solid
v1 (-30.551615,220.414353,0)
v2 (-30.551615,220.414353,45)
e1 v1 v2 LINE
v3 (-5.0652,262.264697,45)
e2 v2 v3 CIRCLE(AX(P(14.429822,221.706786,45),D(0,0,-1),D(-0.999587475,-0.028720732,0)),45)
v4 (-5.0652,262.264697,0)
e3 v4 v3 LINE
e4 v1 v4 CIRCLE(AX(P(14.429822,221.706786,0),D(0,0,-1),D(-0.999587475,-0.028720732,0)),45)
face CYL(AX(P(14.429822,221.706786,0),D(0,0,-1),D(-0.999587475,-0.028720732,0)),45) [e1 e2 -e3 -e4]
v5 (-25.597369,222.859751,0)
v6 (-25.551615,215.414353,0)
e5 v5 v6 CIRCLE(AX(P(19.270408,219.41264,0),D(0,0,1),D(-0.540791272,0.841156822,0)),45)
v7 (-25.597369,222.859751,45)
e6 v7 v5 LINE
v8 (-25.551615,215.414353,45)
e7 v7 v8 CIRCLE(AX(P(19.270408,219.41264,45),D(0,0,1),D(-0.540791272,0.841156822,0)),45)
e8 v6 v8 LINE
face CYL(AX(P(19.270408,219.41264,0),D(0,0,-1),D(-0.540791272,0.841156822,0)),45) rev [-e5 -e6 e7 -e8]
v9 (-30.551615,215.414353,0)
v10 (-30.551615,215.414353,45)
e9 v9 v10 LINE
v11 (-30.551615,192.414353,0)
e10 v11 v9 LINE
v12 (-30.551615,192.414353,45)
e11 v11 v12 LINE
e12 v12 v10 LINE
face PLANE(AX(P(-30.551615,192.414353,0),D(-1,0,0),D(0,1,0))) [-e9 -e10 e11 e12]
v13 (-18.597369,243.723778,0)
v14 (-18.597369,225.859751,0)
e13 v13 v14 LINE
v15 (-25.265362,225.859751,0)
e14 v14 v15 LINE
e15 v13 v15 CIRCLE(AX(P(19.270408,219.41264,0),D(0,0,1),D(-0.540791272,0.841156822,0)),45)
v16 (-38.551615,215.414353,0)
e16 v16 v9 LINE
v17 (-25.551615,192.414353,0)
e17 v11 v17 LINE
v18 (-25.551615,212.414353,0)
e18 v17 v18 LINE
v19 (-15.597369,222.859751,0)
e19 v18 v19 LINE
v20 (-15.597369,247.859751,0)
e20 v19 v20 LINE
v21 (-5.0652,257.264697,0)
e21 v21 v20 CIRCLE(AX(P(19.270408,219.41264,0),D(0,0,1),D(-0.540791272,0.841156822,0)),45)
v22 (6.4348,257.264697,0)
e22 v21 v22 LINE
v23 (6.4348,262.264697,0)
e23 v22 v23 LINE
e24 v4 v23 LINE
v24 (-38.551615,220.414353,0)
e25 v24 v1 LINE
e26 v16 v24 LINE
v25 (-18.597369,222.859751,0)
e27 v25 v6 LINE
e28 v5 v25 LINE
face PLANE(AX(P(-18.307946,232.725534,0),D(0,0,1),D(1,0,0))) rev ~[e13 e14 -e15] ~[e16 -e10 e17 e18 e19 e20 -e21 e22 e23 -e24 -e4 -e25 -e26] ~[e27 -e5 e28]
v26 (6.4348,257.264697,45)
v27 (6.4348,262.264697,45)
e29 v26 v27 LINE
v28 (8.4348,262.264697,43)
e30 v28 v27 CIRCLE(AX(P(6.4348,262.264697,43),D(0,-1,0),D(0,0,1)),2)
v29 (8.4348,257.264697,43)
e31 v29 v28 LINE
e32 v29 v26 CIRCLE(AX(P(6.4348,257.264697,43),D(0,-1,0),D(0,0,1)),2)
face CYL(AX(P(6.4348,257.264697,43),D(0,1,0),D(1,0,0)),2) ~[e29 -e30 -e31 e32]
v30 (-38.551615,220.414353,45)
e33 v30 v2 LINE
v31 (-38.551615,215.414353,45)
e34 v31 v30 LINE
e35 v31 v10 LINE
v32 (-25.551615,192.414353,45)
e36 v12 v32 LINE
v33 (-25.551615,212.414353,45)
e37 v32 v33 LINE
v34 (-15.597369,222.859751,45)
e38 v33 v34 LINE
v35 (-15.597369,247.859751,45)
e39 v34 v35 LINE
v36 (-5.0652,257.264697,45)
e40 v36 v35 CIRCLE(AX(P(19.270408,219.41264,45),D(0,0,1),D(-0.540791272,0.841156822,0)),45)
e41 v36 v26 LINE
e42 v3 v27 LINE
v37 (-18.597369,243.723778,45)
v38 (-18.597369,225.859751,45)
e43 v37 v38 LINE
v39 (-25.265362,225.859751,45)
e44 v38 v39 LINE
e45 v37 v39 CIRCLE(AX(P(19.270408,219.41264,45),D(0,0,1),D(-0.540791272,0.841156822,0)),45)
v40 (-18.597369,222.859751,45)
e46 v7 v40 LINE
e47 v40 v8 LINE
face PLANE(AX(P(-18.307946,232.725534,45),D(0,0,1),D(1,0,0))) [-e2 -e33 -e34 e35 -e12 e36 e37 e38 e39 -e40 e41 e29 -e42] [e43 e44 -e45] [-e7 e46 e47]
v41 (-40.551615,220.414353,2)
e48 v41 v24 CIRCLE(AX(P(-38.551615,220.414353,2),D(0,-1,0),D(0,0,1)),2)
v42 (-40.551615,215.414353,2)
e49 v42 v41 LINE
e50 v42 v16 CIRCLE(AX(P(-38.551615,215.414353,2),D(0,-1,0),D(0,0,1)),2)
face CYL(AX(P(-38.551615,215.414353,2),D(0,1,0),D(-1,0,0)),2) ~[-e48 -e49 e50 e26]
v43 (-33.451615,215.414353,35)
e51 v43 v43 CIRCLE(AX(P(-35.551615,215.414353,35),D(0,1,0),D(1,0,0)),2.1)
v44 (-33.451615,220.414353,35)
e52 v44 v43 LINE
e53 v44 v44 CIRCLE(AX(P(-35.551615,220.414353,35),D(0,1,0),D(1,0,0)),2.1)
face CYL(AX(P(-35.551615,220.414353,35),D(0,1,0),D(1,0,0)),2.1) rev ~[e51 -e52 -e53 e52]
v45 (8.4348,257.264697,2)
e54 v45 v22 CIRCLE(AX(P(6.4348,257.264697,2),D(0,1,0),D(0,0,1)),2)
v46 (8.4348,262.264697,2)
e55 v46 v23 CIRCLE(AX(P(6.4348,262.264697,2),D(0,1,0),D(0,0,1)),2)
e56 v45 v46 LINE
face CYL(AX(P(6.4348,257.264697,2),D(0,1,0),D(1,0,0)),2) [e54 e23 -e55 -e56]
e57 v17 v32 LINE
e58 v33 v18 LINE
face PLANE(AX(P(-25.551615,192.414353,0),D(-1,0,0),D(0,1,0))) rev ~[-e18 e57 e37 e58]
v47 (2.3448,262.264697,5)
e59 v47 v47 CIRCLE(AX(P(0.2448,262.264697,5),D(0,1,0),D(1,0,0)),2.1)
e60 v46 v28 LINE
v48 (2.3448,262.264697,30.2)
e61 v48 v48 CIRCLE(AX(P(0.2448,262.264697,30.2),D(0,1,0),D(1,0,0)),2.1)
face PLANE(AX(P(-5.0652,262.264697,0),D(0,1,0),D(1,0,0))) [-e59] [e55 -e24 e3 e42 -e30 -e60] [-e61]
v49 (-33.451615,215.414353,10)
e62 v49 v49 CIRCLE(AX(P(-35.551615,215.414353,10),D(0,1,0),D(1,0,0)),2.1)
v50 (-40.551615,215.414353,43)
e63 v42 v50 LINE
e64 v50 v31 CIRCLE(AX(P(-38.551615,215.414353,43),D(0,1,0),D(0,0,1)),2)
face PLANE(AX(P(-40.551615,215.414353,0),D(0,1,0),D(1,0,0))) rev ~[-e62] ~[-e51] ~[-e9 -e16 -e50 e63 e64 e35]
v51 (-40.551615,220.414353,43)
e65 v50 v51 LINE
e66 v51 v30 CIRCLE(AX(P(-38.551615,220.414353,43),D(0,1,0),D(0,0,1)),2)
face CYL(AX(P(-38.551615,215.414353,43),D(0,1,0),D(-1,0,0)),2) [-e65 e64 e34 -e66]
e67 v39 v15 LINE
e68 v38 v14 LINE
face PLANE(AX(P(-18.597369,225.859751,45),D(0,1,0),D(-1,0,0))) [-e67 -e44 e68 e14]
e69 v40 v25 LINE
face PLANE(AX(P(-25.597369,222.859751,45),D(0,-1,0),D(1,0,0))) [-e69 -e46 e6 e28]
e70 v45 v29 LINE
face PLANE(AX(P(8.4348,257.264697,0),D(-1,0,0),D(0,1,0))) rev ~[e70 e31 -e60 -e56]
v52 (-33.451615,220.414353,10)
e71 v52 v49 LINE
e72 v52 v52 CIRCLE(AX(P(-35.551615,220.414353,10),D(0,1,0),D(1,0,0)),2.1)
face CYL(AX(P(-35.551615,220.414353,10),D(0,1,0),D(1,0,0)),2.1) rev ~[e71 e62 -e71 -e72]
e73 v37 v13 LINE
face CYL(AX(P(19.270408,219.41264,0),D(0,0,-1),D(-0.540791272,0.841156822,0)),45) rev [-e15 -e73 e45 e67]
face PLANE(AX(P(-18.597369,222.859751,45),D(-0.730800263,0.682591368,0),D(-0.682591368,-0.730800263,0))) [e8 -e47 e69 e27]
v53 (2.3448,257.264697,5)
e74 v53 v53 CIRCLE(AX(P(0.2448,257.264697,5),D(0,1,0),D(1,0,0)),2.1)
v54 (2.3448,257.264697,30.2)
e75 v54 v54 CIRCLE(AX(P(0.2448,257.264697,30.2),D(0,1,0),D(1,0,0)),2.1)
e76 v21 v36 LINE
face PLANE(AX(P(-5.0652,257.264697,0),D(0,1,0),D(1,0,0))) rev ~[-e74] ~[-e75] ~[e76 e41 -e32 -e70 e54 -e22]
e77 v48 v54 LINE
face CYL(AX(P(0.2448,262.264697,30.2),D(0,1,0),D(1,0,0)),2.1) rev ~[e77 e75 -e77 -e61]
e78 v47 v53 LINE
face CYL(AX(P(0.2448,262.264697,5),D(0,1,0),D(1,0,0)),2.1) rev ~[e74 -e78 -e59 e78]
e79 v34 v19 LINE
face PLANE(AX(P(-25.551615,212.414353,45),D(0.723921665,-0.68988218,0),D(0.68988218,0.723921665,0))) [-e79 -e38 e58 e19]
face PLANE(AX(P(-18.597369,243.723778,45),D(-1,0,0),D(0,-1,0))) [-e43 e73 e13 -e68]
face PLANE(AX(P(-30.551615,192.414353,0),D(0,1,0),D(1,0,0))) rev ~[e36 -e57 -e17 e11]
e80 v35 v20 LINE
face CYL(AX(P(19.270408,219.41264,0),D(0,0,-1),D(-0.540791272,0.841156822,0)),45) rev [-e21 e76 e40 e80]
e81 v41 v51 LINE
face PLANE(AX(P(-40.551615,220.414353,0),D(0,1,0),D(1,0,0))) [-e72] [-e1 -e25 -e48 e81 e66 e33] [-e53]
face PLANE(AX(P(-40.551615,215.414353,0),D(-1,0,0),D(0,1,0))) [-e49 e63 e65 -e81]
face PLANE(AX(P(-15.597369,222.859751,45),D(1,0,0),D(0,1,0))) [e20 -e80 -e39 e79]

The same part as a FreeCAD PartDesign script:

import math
import FreeCAD as App
import Part
import Sketcher


def edges_at(feature, points):
    """Names of the edges that pass closest to the given points."""
    edges = feature.Shape.Edges
    near = lambda p: min(range(len(edges)), key=lambda i: edges[i].distToShape(Part.Vertex(*p))[0])
    return sorted({f"Edge{near(p) + 1}" for p in points})


def add_polygon(sketch, points):
    """Adds a closed chain of lines whose ends are joined by coincident constraints."""
    first, n = sketch.GeometryCount, len(points)
    for a, b in zip(points, points[1:] + points[:1]):
        sketch.addGeometry(Part.LineSegment(App.Vector(*a, 0), App.Vector(*b, 0)), False)
    for i in range(n):
        sketch.addConstraint(Sketcher.Constraint("Coincident", first + i, 2, first + (i + 1) % n, 1))

doc = App.newDocument("Part")
body = doc.addObject("PartDesign::Body", "Body")

# Sketch on XY plane
sketch1 = body.newObject("Sketcher::SketchObject", "Sketch")
sketch1.AttachmentSupport = (doc.getObject("XY_Plane"), [""])
sketch1.MapMode = "FlatFace"
sketch1.addGeometry(Part.ArcOfCircle(Part.Circle(App.Vector(19.270408, 219.41264, 0), App.Vector(0, 0, 1), 45), math.radians(122.73752), math.radians(185.097499)), False)
sketch1.addGeometry(Part.LineSegment(App.Vector(-5.0652, 257.264697, 0), App.Vector(8.4348, 257.264697, 0)), False)
sketch1.addGeometry(Part.LineSegment(App.Vector(8.4348, 257.264697, 0), App.Vector(8.4348, 262.264697, 0)), False)
sketch1.addGeometry(Part.LineSegment(App.Vector(8.4348, 262.264697, 0), App.Vector(-5.0652, 262.264697, 0)), False)
sketch1.addGeometry(Part.ArcOfCircle(Part.Circle(App.Vector(14.429822, 221.706786, 0), App.Vector(0, 0, 1), 45), math.radians(115.672255), math.radians(181.645803)), False)
sketch1.addGeometry(Part.LineSegment(App.Vector(-30.551615, 220.414353, 0), App.Vector(-40.551615, 220.414353, 0)), False)
sketch1.addGeometry(Part.LineSegment(App.Vector(-40.551615, 220.414353, 0), App.Vector(-40.551615, 215.414353, 0)), False)
sketch1.addGeometry(Part.LineSegment(App.Vector(-40.551615, 215.414353, 0), App.Vector(-30.551615, 215.414353, 0)), False)
sketch1.addGeometry(Part.LineSegment(App.Vector(-30.551615, 215.414353, 0), App.Vector(-30.551615, 192.414353, 0)), False)
sketch1.addGeometry(Part.LineSegment(App.Vector(-30.551615, 192.414353, 0), App.Vector(-25.551615, 192.414353, 0)), False)
sketch1.addGeometry(Part.LineSegment(App.Vector(-25.551615, 192.414353, 0), App.Vector(-25.551615, 215.414353, 0)), False)
sketch1.addConstraint(Sketcher.Constraint("Coincident", 0, 1, 1, 1))
sketch1.addConstraint(Sketcher.Constraint("Coincident", 1, 2, 2, 1))
sketch1.addConstraint(Sketcher.Constraint("Coincident", 2, 2, 3, 1))
sketch1.addConstraint(Sketcher.Constraint("Coincident", 3, 2, 4, 1))
sketch1.addConstraint(Sketcher.Constraint("Coincident", 4, 2, 5, 1))
sketch1.addConstraint(Sketcher.Constraint("Coincident", 5, 2, 6, 1))
sketch1.addConstraint(Sketcher.Constraint("Coincident", 6, 2, 7, 1))
sketch1.addConstraint(Sketcher.Constraint("Coincident", 7, 2, 8, 1))
sketch1.addConstraint(Sketcher.Constraint("Coincident", 8, 2, 9, 1))
sketch1.addConstraint(Sketcher.Constraint("Coincident", 9, 2, 10, 1))
sketch1.addConstraint(Sketcher.Constraint("Coincident", 10, 2, 0, 2))
sketch1.addConstraint(Sketcher.Constraint("Horizontal", 1))
sketch1.addConstraint(Sketcher.Constraint("Vertical", 2))
sketch1.addConstraint(Sketcher.Constraint("Horizontal", 3))
sketch1.addConstraint(Sketcher.Constraint("Horizontal", 5))
sketch1.addConstraint(Sketcher.Constraint("Vertical", 6))
sketch1.addConstraint(Sketcher.Constraint("Horizontal", 7))
sketch1.addConstraint(Sketcher.Constraint("Vertical", 8))
sketch1.addConstraint(Sketcher.Constraint("Horizontal", 9))
sketch1.addConstraint(Sketcher.Constraint("Vertical", 10))
sketch1.addConstraint(Sketcher.Constraint("Equal", 0, 4))
sketch1.addConstraint(Sketcher.Constraint("Horizontal", 7, 2, 10, 2))
sketch1.addConstraint(Sketcher.Constraint("Vertical", 0, 1, 3, 2))
sketch1.addConstraint(Sketcher.Constraint("Vertical", 4, 2, 7, 2))
sketch1.addConstraint(Sketcher.Constraint("Equal", 9, 2))
sketch1.addConstraint(Sketcher.Constraint("Equal", 2, 6))
sketch1.addConstraint(Sketcher.Constraint("Radius", 0, 45.0))
sketch1.addConstraint(Sketcher.Constraint("DistanceX", 5, 2, 5, 1, 10.0))
sketch1.addConstraint(Sketcher.Constraint("DistanceX", 9, 1, 9, 2, 5.0))
sketch1.addConstraint(Sketcher.Constraint("DistanceY", 8, 2, 8, 1, 23.0))
sketch1.addConstraint(Sketcher.Constraint("DistanceX", 1, 1, 1, 2, 13.5))
sketch1.addConstraint(Sketcher.Constraint("DistanceX", 0, 1, -1, 1, 5.0652))
sketch1.addConstraint(Sketcher.Constraint("DistanceY", -1, 1, 0, 3, 219.41264))
sketch1.addConstraint(Sketcher.Constraint("DistanceX", -1, 1, 4, 3, 14.429822))
sketch1.addConstraint(Sketcher.Constraint("DistanceX", -1, 1, 0, 3, 19.270408))
pad1 = body.newObject("PartDesign::Pad", "Pad")
pad1.Profile = sketch1
pad1.Length = 45
doc.recompute()

fillet = body.newObject("PartDesign::Fillet", "Fillet")
fillet.Base = (pad1, edges_at(pad1, [
    (-40.552, 217.914, 0),
    (8.435, 259.765, 45),
    (8.435, 259.765, 0),
    (-40.552, 217.914, 45),
]))
fillet.Radius = 2

# Sketch on XZ plane
sketch2 = body.newObject("Sketcher::SketchObject", "Sketch001")
sketch2.AttachmentSupport = (doc.getObject("XZ_Plane"), [""])
sketch2.MapMode = "FlatFace"
sketch2.AttachmentOffset = App.Placement(App.Vector(0, 0, -262.264697), App.Rotation())
sketch2.addGeometry(Part.Circle(App.Vector(0.2448, 40, 0), App.Vector(0, 0, 1), 2.1), False)
sketch2.addGeometry(Part.Circle(App.Vector(0.2448, 14.8, 0), App.Vector(0, 0, 1), 2.1), False)
sketch2.addConstraint(Sketcher.Constraint("Equal", 0, 1))
sketch2.addConstraint(Sketcher.Constraint("Vertical", 0, 3, 1, 3))
sketch2.addConstraint(Sketcher.Constraint("Diameter", 0, 4.2))
sketch2.addConstraint(Sketcher.Constraint("DistanceY", -1, 1, 0, 3, 40.0))
sketch2.addConstraint(Sketcher.Constraint("DistanceY", -1, 1, 1, 3, 14.8))
sketch2.addConstraint(Sketcher.Constraint("DistanceX", -1, 1, 0, 3, 0.2448))
pocket1 = body.newObject("PartDesign::Pocket", "Pocket")
pocket1.Profile = sketch2
pocket1.Length = 45
pocket1.Reversed = True

# Sketch on XZ plane
sketch3 = body.newObject("Sketcher::SketchObject", "Sketch002")
sketch3.AttachmentSupport = (doc.getObject("XZ_Plane"), [""])
sketch3.MapMode = "FlatFace"
sketch3.AttachmentOffset = App.Placement(App.Vector(0, 0, -220.414353), App.Rotation())
sketch3.addGeometry(Part.Circle(App.Vector(-35.551615, 10, 0), App.Vector(0, 0, 1), 2.1), False)
sketch3.addGeometry(Part.Circle(App.Vector(-35.551615, 35, 0), App.Vector(0, 0, 1), 2.1), False)
sketch3.addConstraint(Sketcher.Constraint("Equal", 0, 1))
sketch3.addConstraint(Sketcher.Constraint("Vertical", 0, 3, 1, 3))
sketch3.addConstraint(Sketcher.Constraint("Diameter", 0, 4.2))
sketch3.addConstraint(Sketcher.Constraint("DistanceY", -1, 1, 0, 3, 10.0))
sketch3.addConstraint(Sketcher.Constraint("DistanceY", -1, 1, 1, 3, 35.0))
sketch3.addConstraint(Sketcher.Constraint("DistanceX", 0, 3, -1, 1, 35.551615))
pocket2 = body.newObject("PartDesign::Pocket", "Pocket001")
pocket2.Profile = sketch3
pocket2.Length = 45
pocket2.Reversed = True

# Sketch on XZ plane
sketch4 = body.newObject("Sketcher::SketchObject", "Sketch003")
sketch4.AttachmentSupport = (doc.getObject("XZ_Plane"), [""])
sketch4.MapMode = "FlatFace"
sketch4.AttachmentOffset = App.Placement(App.Vector(0, 0, -262.264697), App.Rotation())
add_polygon(sketch4, [(-3.010778, 10.62984), (-3.010778, 43.217089), (5.199681, 43.217089), (5.199681, 10.62984)])  # lines 0-3
sketch4.addConstraint(Sketcher.Constraint("Vertical", 0))
sketch4.addConstraint(Sketcher.Constraint("Horizontal", 1))
sketch4.addConstraint(Sketcher.Constraint("Vertical", 2))
sketch4.addConstraint(Sketcher.Constraint("Horizontal", 3))
sketch4.addConstraint(Sketcher.Constraint("DistanceX", 1, 1, 1, 2, 8.210459))
sketch4.addConstraint(Sketcher.Constraint("DistanceY", 0, 1, 0, 2, 32.587249))
sketch4.addConstraint(Sketcher.Constraint("DistanceX", 0, 2, -1, 1, 3.010778))
sketch4.addConstraint(Sketcher.Constraint("DistanceY", -1, 1, 0, 2, 43.217089))
pad2 = body.newObject("PartDesign::Pad", "Pad001")
pad2.Profile = sketch4
pad2.Length = 5

# Sketch on XZ plane
sketch5 = body.newObject("Sketcher::SketchObject", "Sketch004")
sketch5.AttachmentSupport = (doc.getObject("XZ_Plane"), [""])
sketch5.MapMode = "FlatFace"
sketch5.AttachmentOffset = App.Placement(App.Vector(0, 0, -262.264697), App.Rotation())
sketch5.addGeometry(Part.Circle(App.Vector(0.2448, 5, 0), App.Vector(0, 0, 1), 2.1), False)
sketch5.addGeometry(Part.Circle(App.Vector(0.2448, 30.2, 0), App.Vector(0, 0, 1), 2.1), False)
sketch5.addConstraint(Sketcher.Constraint("Equal", 0, 1))
sketch5.addConstraint(Sketcher.Constraint("Vertical", 0, 3, 1, 3))
sketch5.addConstraint(Sketcher.Constraint("Diameter", 0, 4.2))
sketch5.addConstraint(Sketcher.Constraint("DistanceY", -1, 1, 0, 3, 5.0))
sketch5.addConstraint(Sketcher.Constraint("DistanceY", -1, 1, 1, 3, 30.2))
sketch5.addConstraint(Sketcher.Constraint("DistanceX", -1, 1, 0, 3, 0.2448))
pocket3 = body.newObject("PartDesign::Pocket", "Pocket002")
pocket3.Profile = sketch5
pocket3.Length = 45
pocket3.Reversed = True

# Sketch on XY plane
sketch6 = body.newObject("Sketcher::SketchObject", "Sketch005")
sketch6.AttachmentSupport = (doc.getObject("XY_Plane"), [""])
sketch6.MapMode = "FlatFace"
sketch6.AttachmentOffset = App.Placement(App.Vector(0, 0, 45), App.Rotation())
sketch6.addGeometry(Part.ArcOfCircle(Part.Circle(App.Vector(19.270407, 219.41264, 0), App.Vector(0, 0, 1), 44.999999), math.radians(171.762939), math.radians(175.606698)), False)
sketch6.addGeometry(Part.LineSegment(App.Vector(-25.597369, 222.859751, 0), App.Vector(-18.597369, 222.859751, 0)), False)
sketch6.addGeometry(Part.LineSegment(App.Vector(-18.597369, 222.859751, 0), App.Vector(-25.551615, 215.414353, 0)), False)
sketch6.addGeometry(Part.LineSegment(App.Vector(-25.551615, 215.414353, 0), App.Vector(-25.551615, 212.414353, 0)), False)
sketch6.addGeometry(Part.LineSegment(App.Vector(-25.551615, 212.414353, 0), App.Vector(-15.597369, 222.859751, 0)), False)
sketch6.addGeometry(Part.LineSegment(App.Vector(-15.597369, 222.859751, 0), App.Vector(-15.597369, 247.859751, 0)), False)
sketch6.addGeometry(Part.ArcOfCircle(Part.Circle(App.Vector(19.270408, 219.41264, 0), App.Vector(0, 0, 1), 45), math.radians(140.790483), math.radians(147.29951)), False)
sketch6.addGeometry(Part.LineSegment(App.Vector(-18.597369, 243.723778, 0), App.Vector(-18.597369, 225.859751, 0)), False)
sketch6.addGeometry(Part.LineSegment(App.Vector(-18.597369, 225.859751, 0), App.Vector(-25.265362, 225.859751, 0)), False)
sketch6.addConstraint(Sketcher.Constraint("Coincident", 0, 2, 1, 1))
sketch6.addConstraint(Sketcher.Constraint("Coincident", 1, 2, 2, 1))
sketch6.addConstraint(Sketcher.Constraint("Coincident", 2, 2, 3, 1))
sketch6.addConstraint(Sketcher.Constraint("Coincident", 3, 2, 4, 1))
sketch6.addConstraint(Sketcher.Constraint("Coincident", 4, 2, 5, 1))
sketch6.addConstraint(Sketcher.Constraint("Coincident", 5, 2, 6, 1))
sketch6.addConstraint(Sketcher.Constraint("Coincident", 6, 2, 7, 1))
sketch6.addConstraint(Sketcher.Constraint("Coincident", 7, 2, 8, 1))
sketch6.addConstraint(Sketcher.Constraint("Coincident", 8, 2, 0, 1))
sketch6.addConstraint(Sketcher.Constraint("Horizontal", 1))
sketch6.addConstraint(Sketcher.Constraint("Vertical", 3))
sketch6.addConstraint(Sketcher.Constraint("Vertical", 5))
sketch6.addConstraint(Sketcher.Constraint("Vertical", 7))
sketch6.addConstraint(Sketcher.Constraint("Horizontal", 8))
sketch6.addConstraint(Sketcher.Constraint("Coincident", 6, 3, 0, 3))
sketch6.addConstraint(Sketcher.Constraint("Equal", 0, 6))
sketch6.addConstraint(Sketcher.Constraint("Horizontal", 1, 2, 4, 2))
sketch6.addConstraint(Sketcher.Constraint("Vertical", 1, 2, 6, 2))
sketch6.addConstraint(Sketcher.Constraint("Radius", 0, 44.999999))
sketch6.addConstraint(Sketcher.Constraint("DistanceX", 1, 1, 1, 2, 7.0))
sketch6.addConstraint(Sketcher.Constraint("DistanceY", 3, 2, 3, 1, 3.0))
sketch6.addConstraint(Sketcher.Constraint("DistanceY", 5, 1, 5, 2, 25.0))
sketch6.addConstraint(Sketcher.Constraint("DistanceX", 1, 2, 4, 2, 3.0))
sketch6.addConstraint(Sketcher.Constraint("DistanceY", 1, 2, 7, 2, 3.0))
sketch6.addConstraint(Sketcher.Constraint("DistanceY", -1, 1, 0, 3, 219.41264))
sketch6.addConstraint(Sketcher.Constraint("DistanceX", 0, 2, -1, 1, 25.597369))
sketch6.addConstraint(Sketcher.Constraint("DistanceX", 2, 2, 0, 3, 44.822022))
sketch6.addConstraint(Sketcher.Constraint("Distance", 2, 10.188007))
pad3 = body.newObject("PartDesign::Pad", "Pad002")
pad3.Profile = sketch6
pad3.Length = 45
pad3.Reversed = True

doc.recompute()
